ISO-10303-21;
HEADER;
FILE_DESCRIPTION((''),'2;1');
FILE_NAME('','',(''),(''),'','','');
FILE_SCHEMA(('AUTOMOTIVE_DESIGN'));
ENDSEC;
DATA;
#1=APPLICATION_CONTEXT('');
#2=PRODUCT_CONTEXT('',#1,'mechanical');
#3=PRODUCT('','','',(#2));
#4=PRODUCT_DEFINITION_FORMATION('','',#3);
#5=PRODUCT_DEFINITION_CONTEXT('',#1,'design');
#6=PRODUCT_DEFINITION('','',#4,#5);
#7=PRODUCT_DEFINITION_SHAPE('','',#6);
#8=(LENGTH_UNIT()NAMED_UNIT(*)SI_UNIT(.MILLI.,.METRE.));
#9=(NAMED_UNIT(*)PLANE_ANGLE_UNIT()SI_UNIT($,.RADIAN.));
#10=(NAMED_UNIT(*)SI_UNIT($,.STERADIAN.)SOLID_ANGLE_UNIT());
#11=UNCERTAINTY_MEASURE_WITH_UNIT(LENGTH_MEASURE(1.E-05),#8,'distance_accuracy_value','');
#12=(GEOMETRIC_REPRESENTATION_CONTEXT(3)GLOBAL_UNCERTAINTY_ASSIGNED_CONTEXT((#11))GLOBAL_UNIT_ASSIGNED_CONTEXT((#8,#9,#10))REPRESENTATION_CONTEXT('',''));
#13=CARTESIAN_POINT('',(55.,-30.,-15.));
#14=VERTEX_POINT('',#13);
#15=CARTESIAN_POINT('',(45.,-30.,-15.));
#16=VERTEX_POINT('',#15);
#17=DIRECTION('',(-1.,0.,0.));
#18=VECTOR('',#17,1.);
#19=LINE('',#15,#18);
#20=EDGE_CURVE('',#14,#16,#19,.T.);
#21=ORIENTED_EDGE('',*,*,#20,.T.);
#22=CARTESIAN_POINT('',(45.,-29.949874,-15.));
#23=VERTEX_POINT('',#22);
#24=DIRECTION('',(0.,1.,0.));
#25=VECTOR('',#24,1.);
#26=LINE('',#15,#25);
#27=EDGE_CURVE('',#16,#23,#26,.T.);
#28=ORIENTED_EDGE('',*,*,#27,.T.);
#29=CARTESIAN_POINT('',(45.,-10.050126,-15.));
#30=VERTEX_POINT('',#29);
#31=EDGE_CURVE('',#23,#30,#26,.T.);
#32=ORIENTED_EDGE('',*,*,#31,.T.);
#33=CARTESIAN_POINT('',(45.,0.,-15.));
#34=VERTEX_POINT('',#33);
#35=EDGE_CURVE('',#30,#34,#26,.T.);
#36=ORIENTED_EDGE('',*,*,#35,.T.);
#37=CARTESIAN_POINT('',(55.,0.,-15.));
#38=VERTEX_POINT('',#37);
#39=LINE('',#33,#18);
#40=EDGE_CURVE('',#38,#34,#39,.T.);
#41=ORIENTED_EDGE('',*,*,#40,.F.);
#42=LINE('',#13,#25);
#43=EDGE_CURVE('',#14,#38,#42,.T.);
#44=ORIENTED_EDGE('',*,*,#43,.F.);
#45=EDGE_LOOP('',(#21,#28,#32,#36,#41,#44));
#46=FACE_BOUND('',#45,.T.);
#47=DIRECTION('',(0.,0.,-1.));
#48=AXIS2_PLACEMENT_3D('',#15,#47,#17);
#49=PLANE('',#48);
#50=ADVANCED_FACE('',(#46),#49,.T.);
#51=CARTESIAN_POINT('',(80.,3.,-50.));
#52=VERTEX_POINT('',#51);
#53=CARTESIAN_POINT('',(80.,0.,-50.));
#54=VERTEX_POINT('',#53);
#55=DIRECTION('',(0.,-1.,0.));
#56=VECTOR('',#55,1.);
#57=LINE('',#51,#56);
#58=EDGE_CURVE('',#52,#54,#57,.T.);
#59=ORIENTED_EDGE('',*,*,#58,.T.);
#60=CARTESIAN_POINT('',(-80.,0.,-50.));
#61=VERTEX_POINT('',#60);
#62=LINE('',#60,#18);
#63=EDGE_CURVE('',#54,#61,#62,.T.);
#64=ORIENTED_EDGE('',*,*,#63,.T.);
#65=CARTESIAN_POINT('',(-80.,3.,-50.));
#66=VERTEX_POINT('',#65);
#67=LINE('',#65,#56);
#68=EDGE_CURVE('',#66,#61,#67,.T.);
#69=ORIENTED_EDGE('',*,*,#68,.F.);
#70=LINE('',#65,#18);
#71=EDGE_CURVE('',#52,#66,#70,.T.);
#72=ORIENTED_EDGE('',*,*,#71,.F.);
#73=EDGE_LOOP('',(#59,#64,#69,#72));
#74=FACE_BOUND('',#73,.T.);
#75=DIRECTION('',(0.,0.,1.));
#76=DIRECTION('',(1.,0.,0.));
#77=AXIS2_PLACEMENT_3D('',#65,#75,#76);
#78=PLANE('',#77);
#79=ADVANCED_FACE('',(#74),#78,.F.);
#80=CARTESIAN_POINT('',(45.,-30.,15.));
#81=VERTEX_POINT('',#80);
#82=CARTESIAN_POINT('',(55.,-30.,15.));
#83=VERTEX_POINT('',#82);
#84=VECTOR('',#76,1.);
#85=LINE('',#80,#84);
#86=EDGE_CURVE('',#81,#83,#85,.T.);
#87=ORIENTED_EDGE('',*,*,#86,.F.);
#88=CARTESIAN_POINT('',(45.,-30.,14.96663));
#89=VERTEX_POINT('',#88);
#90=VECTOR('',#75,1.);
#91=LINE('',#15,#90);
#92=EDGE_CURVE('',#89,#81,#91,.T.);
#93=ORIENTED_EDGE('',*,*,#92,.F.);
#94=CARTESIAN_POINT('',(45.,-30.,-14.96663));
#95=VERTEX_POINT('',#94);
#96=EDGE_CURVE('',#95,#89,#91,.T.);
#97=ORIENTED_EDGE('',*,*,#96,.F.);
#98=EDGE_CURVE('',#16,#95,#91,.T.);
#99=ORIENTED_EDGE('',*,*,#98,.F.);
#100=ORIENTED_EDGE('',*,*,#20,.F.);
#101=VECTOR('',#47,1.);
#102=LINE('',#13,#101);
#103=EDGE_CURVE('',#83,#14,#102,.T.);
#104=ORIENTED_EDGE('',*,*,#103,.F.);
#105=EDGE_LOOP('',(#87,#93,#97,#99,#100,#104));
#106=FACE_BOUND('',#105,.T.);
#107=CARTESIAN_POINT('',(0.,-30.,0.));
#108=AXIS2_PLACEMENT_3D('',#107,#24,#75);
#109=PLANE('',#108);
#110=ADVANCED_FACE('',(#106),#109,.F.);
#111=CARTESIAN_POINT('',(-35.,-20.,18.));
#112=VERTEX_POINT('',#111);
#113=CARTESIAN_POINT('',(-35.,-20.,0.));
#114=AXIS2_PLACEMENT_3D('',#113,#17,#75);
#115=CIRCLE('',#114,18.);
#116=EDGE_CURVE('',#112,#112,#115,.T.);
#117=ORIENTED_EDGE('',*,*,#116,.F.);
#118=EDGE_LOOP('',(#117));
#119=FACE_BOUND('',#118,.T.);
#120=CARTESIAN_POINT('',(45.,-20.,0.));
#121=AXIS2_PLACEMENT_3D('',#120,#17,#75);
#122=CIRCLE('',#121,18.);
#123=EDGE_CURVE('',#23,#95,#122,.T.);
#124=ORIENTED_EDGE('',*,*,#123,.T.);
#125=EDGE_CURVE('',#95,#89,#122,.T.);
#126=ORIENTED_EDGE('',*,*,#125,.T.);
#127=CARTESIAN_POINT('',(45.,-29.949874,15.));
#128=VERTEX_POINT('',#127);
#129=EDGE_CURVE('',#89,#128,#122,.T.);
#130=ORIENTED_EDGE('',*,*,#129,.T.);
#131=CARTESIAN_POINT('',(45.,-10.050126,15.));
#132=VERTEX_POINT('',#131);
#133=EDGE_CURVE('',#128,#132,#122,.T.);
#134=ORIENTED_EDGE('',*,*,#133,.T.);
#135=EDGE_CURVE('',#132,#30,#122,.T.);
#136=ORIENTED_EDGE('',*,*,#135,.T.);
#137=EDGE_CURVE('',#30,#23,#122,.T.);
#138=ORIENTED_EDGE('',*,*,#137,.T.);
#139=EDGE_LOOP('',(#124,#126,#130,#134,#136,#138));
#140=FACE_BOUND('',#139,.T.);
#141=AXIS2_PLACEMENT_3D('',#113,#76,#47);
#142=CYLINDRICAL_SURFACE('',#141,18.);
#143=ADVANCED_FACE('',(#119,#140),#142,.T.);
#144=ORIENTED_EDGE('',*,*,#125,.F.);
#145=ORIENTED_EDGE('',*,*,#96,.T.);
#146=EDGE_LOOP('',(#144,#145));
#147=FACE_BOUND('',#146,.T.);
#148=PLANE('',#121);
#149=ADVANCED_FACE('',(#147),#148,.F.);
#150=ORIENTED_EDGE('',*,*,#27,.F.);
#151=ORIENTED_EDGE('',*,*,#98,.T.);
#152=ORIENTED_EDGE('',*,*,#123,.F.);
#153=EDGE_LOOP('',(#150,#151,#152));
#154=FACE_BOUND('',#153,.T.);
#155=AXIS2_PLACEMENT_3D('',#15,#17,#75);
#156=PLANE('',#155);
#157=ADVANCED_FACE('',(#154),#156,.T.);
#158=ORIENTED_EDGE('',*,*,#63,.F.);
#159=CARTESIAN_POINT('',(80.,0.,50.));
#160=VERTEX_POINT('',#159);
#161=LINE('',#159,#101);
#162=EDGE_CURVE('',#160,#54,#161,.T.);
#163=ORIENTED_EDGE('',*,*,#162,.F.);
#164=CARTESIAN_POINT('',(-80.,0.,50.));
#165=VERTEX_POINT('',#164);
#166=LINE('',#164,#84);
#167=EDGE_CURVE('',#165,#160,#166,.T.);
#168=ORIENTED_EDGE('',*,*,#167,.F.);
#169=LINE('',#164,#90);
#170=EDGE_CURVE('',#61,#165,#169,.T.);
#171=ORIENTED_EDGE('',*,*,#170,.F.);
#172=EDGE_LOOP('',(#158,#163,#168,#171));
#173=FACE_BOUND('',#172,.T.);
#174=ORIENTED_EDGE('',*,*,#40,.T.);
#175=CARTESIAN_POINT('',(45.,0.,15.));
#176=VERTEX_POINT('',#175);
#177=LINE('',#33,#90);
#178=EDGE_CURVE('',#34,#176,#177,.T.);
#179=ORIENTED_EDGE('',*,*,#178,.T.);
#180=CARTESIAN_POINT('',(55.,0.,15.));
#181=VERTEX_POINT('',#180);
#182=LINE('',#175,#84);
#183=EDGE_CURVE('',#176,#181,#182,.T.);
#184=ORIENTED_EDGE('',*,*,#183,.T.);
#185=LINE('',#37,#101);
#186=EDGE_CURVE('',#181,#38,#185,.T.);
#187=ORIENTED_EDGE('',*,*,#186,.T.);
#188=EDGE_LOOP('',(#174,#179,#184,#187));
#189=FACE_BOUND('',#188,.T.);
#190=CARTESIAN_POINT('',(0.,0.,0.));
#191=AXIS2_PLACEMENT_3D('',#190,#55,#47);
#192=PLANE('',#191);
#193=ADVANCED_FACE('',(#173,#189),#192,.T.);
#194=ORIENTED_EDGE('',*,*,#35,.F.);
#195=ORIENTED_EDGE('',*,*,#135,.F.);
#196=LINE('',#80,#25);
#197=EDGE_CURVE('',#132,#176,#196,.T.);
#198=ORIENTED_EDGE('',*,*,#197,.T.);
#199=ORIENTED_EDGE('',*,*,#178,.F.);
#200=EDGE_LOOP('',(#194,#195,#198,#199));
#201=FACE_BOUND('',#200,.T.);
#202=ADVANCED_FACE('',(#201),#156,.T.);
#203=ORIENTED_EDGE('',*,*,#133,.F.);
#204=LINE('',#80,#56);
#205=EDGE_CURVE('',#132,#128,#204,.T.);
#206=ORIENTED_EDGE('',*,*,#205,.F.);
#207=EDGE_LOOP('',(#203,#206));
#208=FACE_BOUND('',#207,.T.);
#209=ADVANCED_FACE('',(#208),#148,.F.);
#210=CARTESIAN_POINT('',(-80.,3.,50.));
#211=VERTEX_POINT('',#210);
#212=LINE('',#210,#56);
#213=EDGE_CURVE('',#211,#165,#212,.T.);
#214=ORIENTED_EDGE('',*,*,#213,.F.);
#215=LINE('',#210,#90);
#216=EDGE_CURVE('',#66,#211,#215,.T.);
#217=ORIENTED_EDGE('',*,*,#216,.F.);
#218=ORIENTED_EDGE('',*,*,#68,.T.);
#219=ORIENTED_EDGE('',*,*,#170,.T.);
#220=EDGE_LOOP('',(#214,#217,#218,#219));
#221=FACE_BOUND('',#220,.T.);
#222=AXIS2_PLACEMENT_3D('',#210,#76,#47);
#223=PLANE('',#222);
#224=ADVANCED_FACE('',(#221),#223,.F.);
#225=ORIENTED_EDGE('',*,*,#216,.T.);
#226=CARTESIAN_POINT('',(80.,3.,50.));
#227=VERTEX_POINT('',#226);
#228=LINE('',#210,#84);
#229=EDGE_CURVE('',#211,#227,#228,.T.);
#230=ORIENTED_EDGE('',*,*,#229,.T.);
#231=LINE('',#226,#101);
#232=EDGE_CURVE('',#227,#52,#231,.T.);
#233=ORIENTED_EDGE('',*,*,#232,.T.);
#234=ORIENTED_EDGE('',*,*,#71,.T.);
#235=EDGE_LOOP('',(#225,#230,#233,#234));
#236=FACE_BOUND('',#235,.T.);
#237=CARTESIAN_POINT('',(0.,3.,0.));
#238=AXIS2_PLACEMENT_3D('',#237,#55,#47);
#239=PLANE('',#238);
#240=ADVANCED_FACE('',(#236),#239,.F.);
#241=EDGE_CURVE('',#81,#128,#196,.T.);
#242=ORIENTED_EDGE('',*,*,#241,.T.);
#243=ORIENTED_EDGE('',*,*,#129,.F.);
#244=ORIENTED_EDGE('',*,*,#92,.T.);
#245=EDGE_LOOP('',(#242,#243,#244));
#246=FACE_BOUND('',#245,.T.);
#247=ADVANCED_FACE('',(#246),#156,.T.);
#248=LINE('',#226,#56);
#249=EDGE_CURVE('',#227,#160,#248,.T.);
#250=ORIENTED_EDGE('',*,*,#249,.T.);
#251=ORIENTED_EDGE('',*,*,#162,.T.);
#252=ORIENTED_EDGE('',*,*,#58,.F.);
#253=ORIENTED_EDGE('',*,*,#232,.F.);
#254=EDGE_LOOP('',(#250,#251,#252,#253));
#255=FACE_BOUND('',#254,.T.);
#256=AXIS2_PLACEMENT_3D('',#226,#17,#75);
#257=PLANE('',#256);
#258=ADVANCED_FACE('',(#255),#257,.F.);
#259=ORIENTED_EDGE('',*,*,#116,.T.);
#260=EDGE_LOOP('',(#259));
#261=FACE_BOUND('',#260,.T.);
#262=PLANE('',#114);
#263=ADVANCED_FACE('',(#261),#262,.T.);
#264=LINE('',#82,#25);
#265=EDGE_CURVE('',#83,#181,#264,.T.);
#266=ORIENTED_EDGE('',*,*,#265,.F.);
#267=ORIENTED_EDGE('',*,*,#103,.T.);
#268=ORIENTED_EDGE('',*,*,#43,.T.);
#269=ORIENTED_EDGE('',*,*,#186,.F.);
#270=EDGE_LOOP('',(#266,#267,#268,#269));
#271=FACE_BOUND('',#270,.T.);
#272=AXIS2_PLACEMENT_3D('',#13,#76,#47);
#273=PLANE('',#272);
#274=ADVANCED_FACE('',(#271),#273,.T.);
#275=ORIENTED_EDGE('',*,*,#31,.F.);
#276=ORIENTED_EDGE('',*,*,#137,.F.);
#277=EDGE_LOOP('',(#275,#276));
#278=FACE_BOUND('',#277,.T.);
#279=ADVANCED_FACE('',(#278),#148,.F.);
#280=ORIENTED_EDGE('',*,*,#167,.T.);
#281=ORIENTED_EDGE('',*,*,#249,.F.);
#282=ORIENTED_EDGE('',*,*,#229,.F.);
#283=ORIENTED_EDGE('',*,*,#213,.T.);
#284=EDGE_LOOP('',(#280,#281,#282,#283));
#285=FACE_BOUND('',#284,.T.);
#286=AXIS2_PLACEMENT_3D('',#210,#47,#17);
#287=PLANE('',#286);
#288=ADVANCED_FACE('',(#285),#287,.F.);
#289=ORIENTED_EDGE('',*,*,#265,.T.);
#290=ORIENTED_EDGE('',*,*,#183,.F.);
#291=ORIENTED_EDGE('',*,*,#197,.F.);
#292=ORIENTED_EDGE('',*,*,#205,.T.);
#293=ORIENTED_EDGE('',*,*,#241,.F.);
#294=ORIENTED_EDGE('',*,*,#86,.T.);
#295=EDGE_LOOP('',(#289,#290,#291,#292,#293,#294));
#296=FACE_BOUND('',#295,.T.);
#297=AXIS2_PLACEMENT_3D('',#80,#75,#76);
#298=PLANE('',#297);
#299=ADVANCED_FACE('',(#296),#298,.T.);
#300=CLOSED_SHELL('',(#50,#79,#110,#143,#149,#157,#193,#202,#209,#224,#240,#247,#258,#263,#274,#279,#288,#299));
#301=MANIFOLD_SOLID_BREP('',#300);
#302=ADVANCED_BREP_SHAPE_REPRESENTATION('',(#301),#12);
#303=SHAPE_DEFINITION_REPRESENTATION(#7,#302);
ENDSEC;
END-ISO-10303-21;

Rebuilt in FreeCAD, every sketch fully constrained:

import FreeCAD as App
import Part
import Sketcher
from FreeCAD import Vector
Q = App.Units.Quantity


def add_polygon(sketch, points):
    """Adds a closed chain of lines whose ends are joined by coincident constraints."""
    first, n = sketch.GeometryCount, len(points)
    for a, b in zip(points, points[1:] + points[:1]):
        sketch.addGeometry(Part.LineSegment(App.Vector(*a, 0), App.Vector(*b, 0)), False)
    for i in range(n):
        sketch.addConstraint(Sketcher.Constraint("Coincident", first + i, 2, first + (i + 1) % n, 1))

doc = App.newDocument("Part")
params = doc.addObject("Spreadsheet::Sheet", "Params")
for row, (alias, value) in enumerate([
    ("sketch1_width", "160 mm"),
    ("sketch1_height", "100 mm"),
    ("pad1_length", "3 mm"),
    ("sketch2_width", "10 mm"),
    ("sketch2_height", "30 mm"),
    ("pad2_length", "30 mm"),
    ("sketch3_diameter", "36 mm"),
    ("pad3_length", "80 mm"),
], start=1):
    params.set(f"A{row}", alias)
    params.set(f"B{row}", "=" + value)
    params.setAlias(f"B{row}", alias)

body = doc.addObject("PartDesign::Body", "Body")

sketch1 = doc.addObject("Sketcher::SketchObject", "Sketch")
body.addObject(sketch1)
sketch1.AttachmentSupport = (doc.XZ_Plane, [""])
sketch1.MapMode = "FlatFace"
add_polygon(sketch1, [(-80, -50), (-80, 50), (80, 50), (80, -50)])
sketch1.addConstraint([
    Sketcher.Constraint("Vertical", 0),
    Sketcher.Constraint("Horizontal", 1),
    Sketcher.Constraint("Vertical", 2),
    Sketcher.Constraint("Horizontal", 3),
    Sketcher.Constraint("Symmetric", 0, 2, 2, 2, -1, 1),
    Sketcher.Constraint("DistanceX", 1, 1, 1, 2, Q("160 mm")),
    Sketcher.Constraint("DistanceY", 0, 1, 0, 2, Q("100 mm")),
])
sketch1.setExpression("Constraints[9]", "Params.sketch1_width")
sketch1.setExpression("Constraints[10]", "Params.sketch1_height")
pad1 = doc.addObject("PartDesign::Pad", "Pad")
body.addObject(pad1)
pad1.Profile = sketch1
pad1.setExpression("Length", "Params.pad1_length")
pad1.Reversed = True

sketch2 = doc.addObject("Sketcher::SketchObject", "Sketch001")
body.addObject(sketch2)
sketch2.AttachmentSupport = (doc.XZ_Plane, [""])
sketch2.MapMode = "FlatFace"
add_polygon(sketch2, [(45, -15), (45, 15), (55, 15), (55, -15)])
sketch2.addConstraint([
    Sketcher.Constraint("Vertical", 0),
    Sketcher.Constraint("Horizontal", 1),
    Sketcher.Constraint("Vertical", 2),
    Sketcher.Constraint("Horizontal", 3),
    Sketcher.Constraint("DistanceX", 1, 1, 1, 2, Q("10 mm")),
    Sketcher.Constraint("DistanceY", 0, 1, 0, 2, Q("30 mm")),
    Sketcher.Constraint("DistanceX", -1, 1, 0, 2, Q("45 mm")),
    Sketcher.Constraint("DistanceY", -1, 1, 0, 2, Q("15 mm")),
])
sketch2.setExpression("Constraints[8]", "Params.sketch2_width")
sketch2.setExpression("Constraints[9]", "Params.sketch2_height")
pad2 = doc.addObject("PartDesign::Pad", "Pad001")
body.addObject(pad2)
pad2.Profile = sketch2
pad2.setExpression("Length", "Params.pad2_length")

sketch3 = doc.addObject("Sketcher::SketchObject", "Sketch002")
body.addObject(sketch3)
sketch3.AttachmentSupport = (doc.YZ_Plane, [""])
sketch3.MapMode = "FlatFace"
sketch3.AttachmentOffset = App.Placement(Vector(0, 0, 45), App.Rotation())
sketch3.addGeometry(Part.Circle(Vector(-20, 0, 0), Vector(0, 0, 1), 18), False)
sketch3.addConstraint([
    Sketcher.Constraint("PointOnObject", 0, 3, -1),
    Sketcher.Constraint("Diameter", 0, Q("36 mm")),
    Sketcher.Constraint("DistanceX", 0, 3, -1, 1, Q("20 mm")),
])
sketch3.setExpression("Constraints[1]", "Params.sketch3_diameter")
pad3 = doc.addObject("PartDesign::Pad", "Pad002")
body.addObject(pad3)
pad3.Profile = sketch3
pad3.setExpression("Length", "Params.pad3_length")
pad3.Reversed = True

doc.recompute()
